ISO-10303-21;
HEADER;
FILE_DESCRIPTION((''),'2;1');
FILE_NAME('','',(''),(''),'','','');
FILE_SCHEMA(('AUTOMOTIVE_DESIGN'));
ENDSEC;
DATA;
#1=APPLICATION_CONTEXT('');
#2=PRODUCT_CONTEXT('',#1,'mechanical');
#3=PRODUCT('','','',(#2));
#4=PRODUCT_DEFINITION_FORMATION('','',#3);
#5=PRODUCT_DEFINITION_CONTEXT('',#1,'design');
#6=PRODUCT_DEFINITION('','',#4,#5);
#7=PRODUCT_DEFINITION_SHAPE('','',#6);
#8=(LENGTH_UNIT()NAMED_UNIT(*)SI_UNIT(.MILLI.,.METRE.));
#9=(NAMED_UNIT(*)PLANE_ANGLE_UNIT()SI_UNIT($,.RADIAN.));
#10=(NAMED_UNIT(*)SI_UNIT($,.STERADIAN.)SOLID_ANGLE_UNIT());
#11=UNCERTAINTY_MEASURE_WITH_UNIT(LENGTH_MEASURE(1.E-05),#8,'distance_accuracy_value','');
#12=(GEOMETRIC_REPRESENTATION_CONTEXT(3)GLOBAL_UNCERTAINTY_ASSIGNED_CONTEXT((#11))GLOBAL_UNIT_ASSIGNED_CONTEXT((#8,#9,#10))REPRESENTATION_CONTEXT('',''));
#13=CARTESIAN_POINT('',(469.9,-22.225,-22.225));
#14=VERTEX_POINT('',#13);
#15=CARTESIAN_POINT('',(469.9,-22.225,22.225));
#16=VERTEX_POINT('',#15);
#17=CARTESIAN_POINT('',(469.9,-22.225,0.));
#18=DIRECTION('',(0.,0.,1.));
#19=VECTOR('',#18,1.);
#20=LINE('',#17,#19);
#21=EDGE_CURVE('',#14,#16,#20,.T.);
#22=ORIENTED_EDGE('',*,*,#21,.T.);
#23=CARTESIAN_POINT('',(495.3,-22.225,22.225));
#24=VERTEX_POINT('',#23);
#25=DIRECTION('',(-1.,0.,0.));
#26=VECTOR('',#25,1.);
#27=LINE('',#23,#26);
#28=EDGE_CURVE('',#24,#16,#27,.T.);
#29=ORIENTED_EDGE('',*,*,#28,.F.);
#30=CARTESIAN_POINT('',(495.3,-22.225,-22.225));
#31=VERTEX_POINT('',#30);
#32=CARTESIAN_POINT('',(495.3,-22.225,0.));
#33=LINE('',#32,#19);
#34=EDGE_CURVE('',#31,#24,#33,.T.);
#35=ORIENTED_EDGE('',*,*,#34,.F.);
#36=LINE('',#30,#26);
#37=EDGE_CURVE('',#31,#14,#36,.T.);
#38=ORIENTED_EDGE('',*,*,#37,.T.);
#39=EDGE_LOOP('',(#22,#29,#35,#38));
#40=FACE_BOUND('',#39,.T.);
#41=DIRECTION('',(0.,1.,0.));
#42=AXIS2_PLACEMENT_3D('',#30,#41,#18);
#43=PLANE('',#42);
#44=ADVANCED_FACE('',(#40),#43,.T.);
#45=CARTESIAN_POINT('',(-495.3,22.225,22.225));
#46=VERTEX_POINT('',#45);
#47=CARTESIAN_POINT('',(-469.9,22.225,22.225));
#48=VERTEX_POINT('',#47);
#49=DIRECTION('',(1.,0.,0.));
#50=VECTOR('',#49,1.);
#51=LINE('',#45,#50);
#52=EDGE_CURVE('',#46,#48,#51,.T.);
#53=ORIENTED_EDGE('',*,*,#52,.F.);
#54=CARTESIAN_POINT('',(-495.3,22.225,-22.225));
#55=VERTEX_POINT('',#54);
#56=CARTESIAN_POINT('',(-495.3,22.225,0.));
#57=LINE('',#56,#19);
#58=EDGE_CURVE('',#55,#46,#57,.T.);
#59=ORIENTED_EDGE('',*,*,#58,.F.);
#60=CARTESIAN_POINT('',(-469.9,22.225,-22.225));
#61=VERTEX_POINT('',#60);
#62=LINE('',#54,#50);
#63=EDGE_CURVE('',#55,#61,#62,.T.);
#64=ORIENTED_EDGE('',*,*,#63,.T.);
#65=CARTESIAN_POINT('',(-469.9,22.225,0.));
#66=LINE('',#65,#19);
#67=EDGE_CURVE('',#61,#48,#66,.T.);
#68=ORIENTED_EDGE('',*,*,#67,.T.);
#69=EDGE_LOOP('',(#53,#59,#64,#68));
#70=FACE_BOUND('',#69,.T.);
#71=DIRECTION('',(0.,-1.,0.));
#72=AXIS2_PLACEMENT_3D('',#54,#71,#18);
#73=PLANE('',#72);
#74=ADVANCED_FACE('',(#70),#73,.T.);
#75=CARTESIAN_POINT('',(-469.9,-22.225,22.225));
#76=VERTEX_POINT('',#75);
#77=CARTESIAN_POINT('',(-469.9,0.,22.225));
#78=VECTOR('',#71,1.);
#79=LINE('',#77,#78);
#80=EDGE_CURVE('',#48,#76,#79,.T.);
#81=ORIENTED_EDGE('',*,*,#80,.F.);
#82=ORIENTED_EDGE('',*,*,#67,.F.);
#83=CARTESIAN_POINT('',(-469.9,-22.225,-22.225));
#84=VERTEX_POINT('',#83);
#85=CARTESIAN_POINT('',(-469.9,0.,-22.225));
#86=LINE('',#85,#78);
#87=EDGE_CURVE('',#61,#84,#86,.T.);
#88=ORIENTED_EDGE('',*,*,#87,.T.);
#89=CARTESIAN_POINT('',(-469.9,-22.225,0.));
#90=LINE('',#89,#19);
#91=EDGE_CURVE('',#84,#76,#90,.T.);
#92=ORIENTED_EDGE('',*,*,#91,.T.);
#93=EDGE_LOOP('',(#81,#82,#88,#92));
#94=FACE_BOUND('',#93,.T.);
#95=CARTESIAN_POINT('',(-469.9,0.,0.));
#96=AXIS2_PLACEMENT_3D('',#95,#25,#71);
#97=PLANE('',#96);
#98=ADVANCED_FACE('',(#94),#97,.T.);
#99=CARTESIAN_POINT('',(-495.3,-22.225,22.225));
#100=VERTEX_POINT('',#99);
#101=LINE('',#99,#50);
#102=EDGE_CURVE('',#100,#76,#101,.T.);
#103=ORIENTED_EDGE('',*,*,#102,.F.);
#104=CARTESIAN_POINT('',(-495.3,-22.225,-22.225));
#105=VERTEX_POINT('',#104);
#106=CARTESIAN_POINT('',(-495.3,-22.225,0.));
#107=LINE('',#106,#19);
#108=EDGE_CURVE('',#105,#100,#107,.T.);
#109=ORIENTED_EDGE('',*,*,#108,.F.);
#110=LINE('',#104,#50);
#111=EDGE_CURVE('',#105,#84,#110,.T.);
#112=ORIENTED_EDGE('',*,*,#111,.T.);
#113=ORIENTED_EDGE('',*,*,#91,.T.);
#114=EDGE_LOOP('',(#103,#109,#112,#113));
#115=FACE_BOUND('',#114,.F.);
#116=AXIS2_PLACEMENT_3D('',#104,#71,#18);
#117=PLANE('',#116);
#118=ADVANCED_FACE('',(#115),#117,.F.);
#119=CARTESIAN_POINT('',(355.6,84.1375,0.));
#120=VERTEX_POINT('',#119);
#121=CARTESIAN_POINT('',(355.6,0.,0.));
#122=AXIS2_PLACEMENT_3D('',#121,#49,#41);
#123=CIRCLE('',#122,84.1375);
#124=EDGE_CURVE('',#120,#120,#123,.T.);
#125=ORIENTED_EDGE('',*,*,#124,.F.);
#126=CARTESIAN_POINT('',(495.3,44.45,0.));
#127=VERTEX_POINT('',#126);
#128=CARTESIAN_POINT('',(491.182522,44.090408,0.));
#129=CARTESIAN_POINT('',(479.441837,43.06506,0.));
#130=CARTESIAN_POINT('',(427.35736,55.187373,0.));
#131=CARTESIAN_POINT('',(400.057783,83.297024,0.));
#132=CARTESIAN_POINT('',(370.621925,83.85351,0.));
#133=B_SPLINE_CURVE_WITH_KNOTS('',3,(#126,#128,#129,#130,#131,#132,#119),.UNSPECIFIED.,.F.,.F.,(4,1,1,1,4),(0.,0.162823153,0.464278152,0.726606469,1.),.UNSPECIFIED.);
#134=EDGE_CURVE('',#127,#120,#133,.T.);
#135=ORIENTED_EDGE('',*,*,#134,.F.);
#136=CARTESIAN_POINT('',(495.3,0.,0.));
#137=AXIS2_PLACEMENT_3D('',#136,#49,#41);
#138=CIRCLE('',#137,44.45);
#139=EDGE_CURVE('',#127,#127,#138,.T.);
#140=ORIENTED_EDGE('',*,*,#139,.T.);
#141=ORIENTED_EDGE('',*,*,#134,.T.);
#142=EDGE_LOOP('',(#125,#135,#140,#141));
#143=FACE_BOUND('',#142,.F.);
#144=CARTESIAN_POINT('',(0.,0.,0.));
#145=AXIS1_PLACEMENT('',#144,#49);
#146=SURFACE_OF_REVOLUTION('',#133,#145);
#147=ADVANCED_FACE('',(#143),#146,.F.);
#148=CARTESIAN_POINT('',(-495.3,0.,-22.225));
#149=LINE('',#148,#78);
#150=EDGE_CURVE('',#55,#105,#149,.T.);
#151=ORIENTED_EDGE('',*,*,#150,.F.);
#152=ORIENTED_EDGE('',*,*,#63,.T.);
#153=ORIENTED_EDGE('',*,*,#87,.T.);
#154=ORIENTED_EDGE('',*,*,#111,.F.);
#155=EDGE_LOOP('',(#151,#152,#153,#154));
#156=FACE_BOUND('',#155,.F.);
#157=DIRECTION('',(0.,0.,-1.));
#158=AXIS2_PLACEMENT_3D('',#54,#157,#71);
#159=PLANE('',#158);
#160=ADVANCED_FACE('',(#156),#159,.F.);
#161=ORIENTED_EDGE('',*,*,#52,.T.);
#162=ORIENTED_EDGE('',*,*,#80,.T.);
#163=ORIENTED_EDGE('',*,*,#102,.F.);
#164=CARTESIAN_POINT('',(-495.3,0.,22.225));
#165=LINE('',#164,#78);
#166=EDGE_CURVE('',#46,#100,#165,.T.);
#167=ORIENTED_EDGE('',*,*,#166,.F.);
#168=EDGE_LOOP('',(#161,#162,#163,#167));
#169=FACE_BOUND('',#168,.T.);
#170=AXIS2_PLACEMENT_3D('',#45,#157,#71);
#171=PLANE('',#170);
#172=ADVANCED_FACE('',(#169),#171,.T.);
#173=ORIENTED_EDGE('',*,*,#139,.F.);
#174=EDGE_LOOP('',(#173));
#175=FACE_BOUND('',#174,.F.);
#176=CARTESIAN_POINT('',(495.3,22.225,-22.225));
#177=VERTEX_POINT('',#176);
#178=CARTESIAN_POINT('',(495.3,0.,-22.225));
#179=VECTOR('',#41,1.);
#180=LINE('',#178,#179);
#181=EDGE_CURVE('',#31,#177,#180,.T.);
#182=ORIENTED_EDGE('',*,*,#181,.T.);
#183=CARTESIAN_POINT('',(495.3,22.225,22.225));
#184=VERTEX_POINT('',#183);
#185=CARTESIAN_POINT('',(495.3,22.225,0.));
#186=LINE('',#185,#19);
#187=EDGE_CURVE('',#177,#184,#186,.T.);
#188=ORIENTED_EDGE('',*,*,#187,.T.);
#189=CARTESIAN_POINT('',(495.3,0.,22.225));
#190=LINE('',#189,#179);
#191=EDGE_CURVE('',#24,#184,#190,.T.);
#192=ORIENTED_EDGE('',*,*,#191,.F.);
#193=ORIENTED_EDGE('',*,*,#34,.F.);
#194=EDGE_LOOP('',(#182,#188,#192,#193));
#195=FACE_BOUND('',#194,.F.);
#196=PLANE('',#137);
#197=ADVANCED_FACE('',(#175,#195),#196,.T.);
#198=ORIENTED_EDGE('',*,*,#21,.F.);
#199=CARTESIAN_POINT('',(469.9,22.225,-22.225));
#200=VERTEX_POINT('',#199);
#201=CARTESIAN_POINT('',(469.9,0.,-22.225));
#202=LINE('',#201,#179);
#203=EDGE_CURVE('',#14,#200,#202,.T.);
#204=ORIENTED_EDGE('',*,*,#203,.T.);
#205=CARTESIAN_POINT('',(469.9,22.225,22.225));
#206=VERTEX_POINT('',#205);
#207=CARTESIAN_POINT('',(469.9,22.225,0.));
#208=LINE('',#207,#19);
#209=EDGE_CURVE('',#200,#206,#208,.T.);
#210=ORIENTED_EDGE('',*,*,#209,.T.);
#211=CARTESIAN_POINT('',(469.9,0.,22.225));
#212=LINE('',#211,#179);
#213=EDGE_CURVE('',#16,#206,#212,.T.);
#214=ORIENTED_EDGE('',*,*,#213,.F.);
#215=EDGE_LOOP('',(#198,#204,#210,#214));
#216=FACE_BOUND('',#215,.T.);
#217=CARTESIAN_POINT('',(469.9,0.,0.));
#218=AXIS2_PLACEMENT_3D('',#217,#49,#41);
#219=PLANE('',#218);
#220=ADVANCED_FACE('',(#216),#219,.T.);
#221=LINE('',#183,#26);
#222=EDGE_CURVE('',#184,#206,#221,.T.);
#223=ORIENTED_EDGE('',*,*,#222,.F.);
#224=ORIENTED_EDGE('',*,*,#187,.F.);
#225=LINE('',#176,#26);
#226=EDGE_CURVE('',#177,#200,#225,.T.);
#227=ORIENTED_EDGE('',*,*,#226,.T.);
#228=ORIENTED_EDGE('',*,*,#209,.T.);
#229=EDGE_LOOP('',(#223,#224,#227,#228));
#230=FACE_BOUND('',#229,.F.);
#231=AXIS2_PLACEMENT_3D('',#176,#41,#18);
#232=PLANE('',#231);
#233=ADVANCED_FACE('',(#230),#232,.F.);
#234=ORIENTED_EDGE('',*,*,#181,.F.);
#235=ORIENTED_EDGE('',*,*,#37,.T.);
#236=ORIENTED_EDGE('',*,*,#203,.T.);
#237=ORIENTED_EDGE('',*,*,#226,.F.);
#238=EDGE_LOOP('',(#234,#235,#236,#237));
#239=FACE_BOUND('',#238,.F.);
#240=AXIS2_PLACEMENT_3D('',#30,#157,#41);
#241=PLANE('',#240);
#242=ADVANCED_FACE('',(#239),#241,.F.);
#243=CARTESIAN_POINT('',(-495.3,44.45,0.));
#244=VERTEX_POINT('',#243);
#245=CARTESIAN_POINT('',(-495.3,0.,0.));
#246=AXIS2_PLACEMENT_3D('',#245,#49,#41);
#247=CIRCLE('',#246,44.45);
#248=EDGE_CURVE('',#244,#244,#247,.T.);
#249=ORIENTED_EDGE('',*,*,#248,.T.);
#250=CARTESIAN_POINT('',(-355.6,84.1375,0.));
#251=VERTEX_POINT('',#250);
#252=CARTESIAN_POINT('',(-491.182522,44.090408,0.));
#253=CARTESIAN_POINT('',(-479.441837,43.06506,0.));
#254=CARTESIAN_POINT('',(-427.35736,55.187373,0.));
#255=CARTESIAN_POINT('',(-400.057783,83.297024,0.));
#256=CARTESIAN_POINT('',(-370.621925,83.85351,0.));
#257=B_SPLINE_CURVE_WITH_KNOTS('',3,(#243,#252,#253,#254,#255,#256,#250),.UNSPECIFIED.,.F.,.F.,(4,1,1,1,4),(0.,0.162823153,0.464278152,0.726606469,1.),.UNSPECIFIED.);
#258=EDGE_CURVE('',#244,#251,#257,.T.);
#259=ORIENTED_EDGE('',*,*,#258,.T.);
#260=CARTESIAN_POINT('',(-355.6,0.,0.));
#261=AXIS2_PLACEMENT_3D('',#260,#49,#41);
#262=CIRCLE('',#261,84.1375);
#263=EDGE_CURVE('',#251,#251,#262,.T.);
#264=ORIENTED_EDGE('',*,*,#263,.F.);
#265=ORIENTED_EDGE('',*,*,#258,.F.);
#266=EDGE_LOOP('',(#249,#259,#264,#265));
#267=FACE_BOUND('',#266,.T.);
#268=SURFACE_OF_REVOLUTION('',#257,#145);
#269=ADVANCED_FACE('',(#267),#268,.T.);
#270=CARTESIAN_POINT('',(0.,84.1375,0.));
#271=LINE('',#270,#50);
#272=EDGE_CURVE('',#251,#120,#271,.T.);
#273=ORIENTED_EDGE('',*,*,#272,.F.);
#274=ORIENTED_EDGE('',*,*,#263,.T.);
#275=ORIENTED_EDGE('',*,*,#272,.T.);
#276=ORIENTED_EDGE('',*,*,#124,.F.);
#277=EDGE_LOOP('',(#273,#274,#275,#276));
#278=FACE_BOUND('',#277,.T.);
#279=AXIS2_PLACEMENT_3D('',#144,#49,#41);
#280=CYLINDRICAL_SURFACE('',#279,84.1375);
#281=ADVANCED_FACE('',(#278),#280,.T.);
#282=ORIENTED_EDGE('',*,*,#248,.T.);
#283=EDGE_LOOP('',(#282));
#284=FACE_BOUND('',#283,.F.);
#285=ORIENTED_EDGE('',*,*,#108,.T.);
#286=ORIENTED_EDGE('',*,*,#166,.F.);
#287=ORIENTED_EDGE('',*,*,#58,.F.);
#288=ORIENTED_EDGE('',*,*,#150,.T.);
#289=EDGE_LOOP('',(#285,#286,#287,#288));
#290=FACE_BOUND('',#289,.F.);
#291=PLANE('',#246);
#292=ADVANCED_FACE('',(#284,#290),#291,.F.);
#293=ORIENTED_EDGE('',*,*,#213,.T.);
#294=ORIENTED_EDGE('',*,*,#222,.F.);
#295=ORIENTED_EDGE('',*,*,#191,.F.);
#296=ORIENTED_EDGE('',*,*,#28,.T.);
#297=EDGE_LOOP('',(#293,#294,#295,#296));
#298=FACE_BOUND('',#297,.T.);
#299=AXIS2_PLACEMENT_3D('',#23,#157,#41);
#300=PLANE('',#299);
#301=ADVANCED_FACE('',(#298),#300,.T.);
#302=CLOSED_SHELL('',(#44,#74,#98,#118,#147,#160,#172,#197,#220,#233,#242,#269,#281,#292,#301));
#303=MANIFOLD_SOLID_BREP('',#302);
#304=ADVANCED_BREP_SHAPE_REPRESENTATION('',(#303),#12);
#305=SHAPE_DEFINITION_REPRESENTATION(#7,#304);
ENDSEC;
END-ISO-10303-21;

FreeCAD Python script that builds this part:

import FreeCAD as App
import Part
import Sketcher
from FreeCAD import Vector
Q = App.Units.Quantity


def add_polygon(sketch, points):
    """Adds a closed chain of lines whose ends are joined by coincident constraints."""
    first, n = sketch.GeometryCount, len(points)
    for a, b in zip(points, points[1:] + points[:1]):
        sketch.addGeometry(Part.LineSegment(App.Vector(*a, 0), App.Vector(*b, 0)), False)
    for i in range(n):
        sketch.addConstraint(Sketcher.Constraint("Coincident", first + i, 2, first + (i + 1) % n, 1))

doc = App.newDocument("Part")
body = doc.addObject("PartDesign::Body", "Body")

# Sketch on XY plane
sketch1 = body.newObject("Sketcher::SketchObject", "Sketch")
sketch1.AttachmentSupport = (doc.getObject("XY_Plane"), [""])
sketch1.MapMode = "FlatFace"
sketch1.addGeometry(Part.LineSegment(Vector(495.3, 0, 0), Vector(495.3, 44.45, 0)), False)
sketch1.addGeometry(Part.BSplineCurve([Vector(495.3, 44.45, 0), Vector(491.182522, 44.090408, 0), Vector(479.441837, 43.06506, 0), Vector(427.35736, 55.187373, 0), Vector(400.057783, 83.297024, 0), Vector(370.621925, 83.85351, 0), Vector(355.6, 84.1375, 0)], [4, 1, 1, 1, 4], [0, 0.162823153, 0.464278152, 0.726606469, 1], False, 3, [1, 1, 1, 1, 1, 1, 1], False), False)
sketch1.addGeometry(Part.LineSegment(Vector(355.6, 84.1375, 0), Vector(-355.6, 84.1375, 0)), False)
sketch1.addGeometry(Part.BSplineCurve([Vector(-495.3, 44.45, 0), Vector(-491.182522, 44.090408, 0), Vector(-479.441837, 43.06506, 0), Vector(-427.35736, 55.187373, 0), Vector(-400.057783, 83.297024, 0), Vector(-370.621925, 83.85351, 0), Vector(-355.6, 84.1375, 0)], [4, 1, 1, 1, 4], [0, 0.162823153, 0.464278152, 0.726606469, 1], False, 3, [1, 1, 1, 1, 1, 1, 1], False), False)
sketch1.addGeometry(Part.LineSegment(Vector(-495.3, 44.45, 0), Vector(-495.3, 0, 0)), False)
sketch1.addGeometry(Part.LineSegment(Vector(-495.3, 0, 0), Vector(495.3, 0, 0)), False)
sketch1.addConstraint(Sketcher.Constraint("Block", 1))
sketch1.addConstraint(Sketcher.Constraint("Block", 3))
sketch1.addConstraint(Sketcher.Constraint("Coincident", 0, 2, 1, 1))
sketch1.addConstraint(Sketcher.Constraint("Coincident", 1, 2, 2, 1))
sketch1.addConstraint(Sketcher.Constraint("Coincident", 2, 2, 3, 2))
sketch1.addConstraint(Sketcher.Constraint("Coincident", 3, 1, 4, 1))
sketch1.addConstraint(Sketcher.Constraint("Coincident", 4, 2, 5, 1))
sketch1.addConstraint(Sketcher.Constraint("Coincident", 5, 2, 0, 1))
sketch1.addConstraint(Sketcher.Constraint("Vertical", 0))
sketch1.addConstraint(Sketcher.Constraint("Vertical", 4))
sketch1.addConstraint(Sketcher.Constraint("Horizontal", 5))
sketch1.addConstraint(Sketcher.Constraint("PointOnObject", 4, 2, -1))
revolution = body.newObject("PartDesign::Revolution", "Revolution")
revolution.Profile = sketch1
revolution.ReferenceAxis = (sketch1, ["H_Axis"])
revolution.Angle = 360

# Sketch on YZ plane
sketch2 = body.newObject("Sketcher::SketchObject", "Sketch001")
sketch2.AttachmentSupport = (doc.getObject("YZ_Plane"), [""])
sketch2.MapMode = "FlatFace"
sketch2.AttachmentOffset = App.Placement(Vector(0, 0, -19.5 * 25.4), App.Rotation())
add_polygon(sketch2, [(22, 22), (22, -22), (-22, -22), (-22, 22)])  # lines 0-3
sketch2.addConstraint(Sketcher.Constraint("Vertical", 0))
sketch2.addConstraint(Sketcher.Constraint("Horizontal", 1))
sketch2.addConstraint(Sketcher.Constraint("Vertical", 2))
sketch2.addConstraint(Sketcher.Constraint("Horizontal", 3))
sketch2.addConstraint(Sketcher.Constraint("Symmetric", 0, 2, 2, 2, -1, 1))
sketch2.addConstraint(Sketcher.Constraint("Equal", 3, 0))
sketch2.addConstraint(Sketcher.Constraint("DistanceX", 1, 2, 1, 1, Q("1.75 in")))
pocket1 = body.newObject("PartDesign::Pocket", "Pocket")
pocket1.Profile = sketch2
pocket1.Length = Q("1 in")
pocket1.Reversed = True

# Sketch on YZ plane
sketch3 = body.newObject("Sketcher::SketchObject", "Sketch002")
sketch3.AttachmentSupport = (doc.getObject("YZ_Plane"), [""])
sketch3.MapMode = "FlatFace"
sketch3.AttachmentOffset = App.Placement(Vector(0, 0, 19.5 * 25.4), App.Rotation())
add_polygon(sketch3, [(-22, 22), (-22, -22), (22, -22), (22, 22)])  # lines 0-3
sketch3.addConstraint(Sketcher.Constraint("Vertical", 0))
sketch3.addConstraint(Sketcher.Constraint("Horizontal", 1))
sketch3.addConstraint(Sketcher.Constraint("Vertical", 2))
sketch3.addConstraint(Sketcher.Constraint("Horizontal", 3))
sketch3.addConstraint(Sketcher.Constraint("Symmetric", 0, 2, 2, 2, -1, 1))
sketch3.addConstraint(Sketcher.Constraint("Equal", 3, 0))
sketch3.addConstraint(Sketcher.Constraint("DistanceX", 1, 1, 1, 2, Q("1.75 in")))
pocket2 = body.newObject("PartDesign::Pocket", "Pocket001")
pocket2.Profile = sketch3
pocket2.Length = Q("1 in")

doc.recompute()
